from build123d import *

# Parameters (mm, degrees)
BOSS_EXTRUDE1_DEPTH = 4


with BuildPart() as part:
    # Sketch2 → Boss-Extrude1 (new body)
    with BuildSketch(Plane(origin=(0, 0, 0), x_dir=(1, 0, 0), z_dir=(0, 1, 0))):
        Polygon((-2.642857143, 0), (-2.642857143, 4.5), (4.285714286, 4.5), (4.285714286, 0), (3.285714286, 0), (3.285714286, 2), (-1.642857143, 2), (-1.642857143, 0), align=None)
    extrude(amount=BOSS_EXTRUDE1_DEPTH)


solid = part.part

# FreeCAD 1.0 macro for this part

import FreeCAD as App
import Part
import Sketcher
from FreeCAD import Vector
Q = App.Units.Quantity

doc = App.newDocument("Part")
body = doc.addObject("PartDesign::Body", "Body")

sketch1 = doc.addObject("Sketcher::SketchObject", "Sketch")
body.addObject(sketch1)
sketch1.AttachmentSupport = (doc.XZ_Plane, [""])
sketch1.MapMode = "FlatFace"
sketch1.addGeometry(Part.LineSegment(Vector(-2.6, -4.5, 0), Vector(-2.6, 0, 0)), False)
sketch1.addGeometry(Part.LineSegment(Vector(-2.6, 0, 0), Vector(-1.6, 0, 0)), False)
sketch1.addGeometry(Part.LineSegment(Vector(-1.6, 0, 0), Vector(-1.6, -2, 0)), False)
sketch1.addGeometry(Part.LineSegment(Vector(-1.6, -2, 0), Vector(3.3, -2, 0)), False)
sketch1.addGeometry(Part.LineSegment(Vector(3.3, -2, 0), Vector(3.3, 0, 0)), False)
sketch1.addGeometry(Part.LineSegment(Vector(3.3, 0, 0), Vector(4.3, 0, 0)), False)
sketch1.addGeometry(Part.LineSegment(Vector(4.3, 0, 0), Vector(4.3, -4.5, 0)), False)
sketch1.addGeometry(Part.LineSegment(Vector(4.3, -4.5, 0), Vector(-2.6, -4.5, 0)), False)
sketch1.addConstraint(Sketcher.Constraint("Coincident", 0, 2, 1, 1))
sketch1.addConstraint(Sketcher.Constraint("Coincident", 1, 2, 2, 1))
sketch1.addConstraint(Sketcher.Constraint("Coincident", 2, 2, 3, 1))
sketch1.addConstraint(Sketcher.Constraint("Coincident", 3, 2, 4, 1))
sketch1.addConstraint(Sketcher.Constraint("Coincident", 4, 2, 5, 1))
sketch1.addConstraint(Sketcher.Constraint("Coincident", 5, 2, 6, 1))
sketch1.addConstraint(Sketcher.Constraint("Coincident", 6, 2, 7, 1))
sketch1.addConstraint(Sketcher.Constraint("Coincident", 7, 2, 0, 1))
sketch1.addConstraint(Sketcher.Constraint("Vertical", 0))
sketch1.addConstraint(Sketcher.Constraint("Horizontal", 1))
sketch1.addConstraint(Sketcher.Constraint("Vertical", 2))
sketch1.addConstraint(Sketcher.Constraint("Horizontal", 3))
sketch1.addConstraint(Sketcher.Constraint("Vertical", 4))
sketch1.addConstraint(Sketcher.Constraint("Horizontal", 5))
sketch1.addConstraint(Sketcher.Constraint("Vertical", 6))
sketch1.addConstraint(Sketcher.Constraint("Horizontal", 7))
sketch1.addConstraint(Sketcher.Constraint("PointOnObject", 0, 2, -1))
sketch1.addConstraint(Sketcher.Constraint("PointOnObject", 4, 2, -1))
sketch1.addConstraint(Sketcher.Constraint("Equal", 1, 5))
sketch1.addConstraint(Sketcher.Constraint("DistanceX", 1, 1, 1, 2, Q("1 mm")))
sketch1.addConstraint(Sketcher.Constraint("DistanceY", 2, 2, 2, 1, Q("2 mm")))
sketch1.addConstraint(Sketcher.Constraint("DistanceY", 0, 1, 0, 2, Q("4.5 mm")))
sketch1.addConstraint(Sketcher.Constraint("DistanceX", 3, 1, 3, 2, Q("4.928571 mm")))
sketch1.addConstraint(Sketcher.Constraint("DistanceX", 0, 2, -1, 1, Q("2.642857 mm")))
pad1 = doc.addObject("PartDesign::Pad", "Pad")
body.addObject(pad1)
pad1.Profile = sketch1
pad1.Length = 4
pad1.Reversed = True

doc.recompute()
